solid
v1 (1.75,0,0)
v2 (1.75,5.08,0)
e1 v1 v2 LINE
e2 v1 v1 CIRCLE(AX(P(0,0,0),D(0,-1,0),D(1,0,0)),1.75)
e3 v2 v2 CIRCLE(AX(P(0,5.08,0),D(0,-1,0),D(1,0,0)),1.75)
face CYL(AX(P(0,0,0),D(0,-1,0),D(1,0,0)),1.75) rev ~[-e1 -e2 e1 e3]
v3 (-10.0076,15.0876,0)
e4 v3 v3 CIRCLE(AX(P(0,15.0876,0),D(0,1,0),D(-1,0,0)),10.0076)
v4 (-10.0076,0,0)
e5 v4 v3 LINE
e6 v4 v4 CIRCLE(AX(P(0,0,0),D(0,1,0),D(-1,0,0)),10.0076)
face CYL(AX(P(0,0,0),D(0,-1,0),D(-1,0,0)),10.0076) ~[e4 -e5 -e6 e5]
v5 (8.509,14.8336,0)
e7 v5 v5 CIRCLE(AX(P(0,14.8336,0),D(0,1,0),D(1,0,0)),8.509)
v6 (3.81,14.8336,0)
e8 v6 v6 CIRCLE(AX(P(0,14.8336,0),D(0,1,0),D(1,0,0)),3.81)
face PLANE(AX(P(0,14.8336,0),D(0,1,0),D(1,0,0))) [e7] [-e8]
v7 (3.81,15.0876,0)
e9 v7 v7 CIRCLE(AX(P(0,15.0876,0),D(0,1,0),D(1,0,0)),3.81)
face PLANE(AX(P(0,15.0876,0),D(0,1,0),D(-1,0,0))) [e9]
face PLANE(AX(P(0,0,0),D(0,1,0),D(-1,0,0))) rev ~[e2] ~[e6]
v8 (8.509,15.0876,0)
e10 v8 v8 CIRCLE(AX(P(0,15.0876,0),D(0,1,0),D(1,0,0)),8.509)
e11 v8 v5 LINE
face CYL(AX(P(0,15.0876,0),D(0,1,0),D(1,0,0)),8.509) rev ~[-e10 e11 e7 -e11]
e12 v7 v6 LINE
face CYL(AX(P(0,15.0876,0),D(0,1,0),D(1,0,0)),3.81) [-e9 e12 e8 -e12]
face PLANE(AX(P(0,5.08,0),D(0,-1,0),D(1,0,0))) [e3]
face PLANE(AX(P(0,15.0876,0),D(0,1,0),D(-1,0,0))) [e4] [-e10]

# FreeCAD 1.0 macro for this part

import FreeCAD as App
import Part
import Sketcher
Q = App.Units.Quantity

doc = App.newDocument("Part")
body = doc.addObject("PartDesign::Body", "Body")

# Sketch on XZ plane
sketch1 = body.newObject("Sketcher::SketchObject", "Sketch")
sketch1.AttachmentSupport = (doc.getObject("XZ_Plane"), [""])
sketch1.MapMode = "FlatFace"
sketch1.addGeometry(Part.Circle(App.Vector(0, 0, 0), App.Vector(0, 0, 1), 10.0076), False)
sketch1.addConstraint([
    Sketcher.Constraint("Coincident", 0, 3, -1, 1),
    Sketcher.Constraint("Diameter", 0, Q("0.788 in")),
])
pad1 = body.newObject("PartDesign::Pad", "Pad")
pad1.Profile = sketch1
pad1.Length = Q("0.594 in")
pad1.Reversed = True

# Sketch on XZ plane
sketch2 = body.newObject("Sketcher::SketchObject", "Sketch001")
sketch2.AttachmentSupport = (doc.getObject("XZ_Plane"), [""])
sketch2.MapMode = "FlatFace"
sketch2.AttachmentOffset = App.Placement(App.Vector(0, 0, -0.594 * 25.4), App.Rotation())
sketch2.addGeometry([
    Part.Circle(App.Vector(0, 0, 0), App.Vector(0, 0, 1), 8.509),
    Part.Circle(App.Vector(0, 0, 0), App.Vector(0, 0, 1), 3.81),
], False)
sketch2.addConstraint([
    Sketcher.Constraint("Coincident", 0, 3, -1, 1),
    Sketcher.Constraint("Coincident", 1, 3, -1, 1),
    Sketcher.Constraint("Diameter", 1, Q("0.3 in")),
    Sketcher.Constraint("Diameter", 0, Q("0.67 in")),
])
pocket1 = body.newObject("PartDesign::Pocket", "Pocket")
pocket1.Profile = sketch2
pocket1.Length = Q("0.01 in")
pocket1.Reversed = True

# Sketch on XZ plane
sketch3 = body.newObject("Sketcher::SketchObject", "Sketch002")
sketch3.AttachmentSupport = (doc.getObject("XZ_Plane"), [""])
sketch3.MapMode = "FlatFace"
sketch3.addGeometry(Part.Circle(App.Vector(0, 0, 0), App.Vector(0, 0, 1), 1.75), False)
sketch3.addConstraint([
    Sketcher.Constraint("Coincident", 0, 3, -1, 1),
    Sketcher.Constraint("Diameter", 0, Q("0.1378 in")),
])
pocket2 = body.newObject("PartDesign::Pocket", "Pocket001")
pocket2.Profile = sketch3
pocket2.Length = Q("0.2 in")

doc.recompute()
